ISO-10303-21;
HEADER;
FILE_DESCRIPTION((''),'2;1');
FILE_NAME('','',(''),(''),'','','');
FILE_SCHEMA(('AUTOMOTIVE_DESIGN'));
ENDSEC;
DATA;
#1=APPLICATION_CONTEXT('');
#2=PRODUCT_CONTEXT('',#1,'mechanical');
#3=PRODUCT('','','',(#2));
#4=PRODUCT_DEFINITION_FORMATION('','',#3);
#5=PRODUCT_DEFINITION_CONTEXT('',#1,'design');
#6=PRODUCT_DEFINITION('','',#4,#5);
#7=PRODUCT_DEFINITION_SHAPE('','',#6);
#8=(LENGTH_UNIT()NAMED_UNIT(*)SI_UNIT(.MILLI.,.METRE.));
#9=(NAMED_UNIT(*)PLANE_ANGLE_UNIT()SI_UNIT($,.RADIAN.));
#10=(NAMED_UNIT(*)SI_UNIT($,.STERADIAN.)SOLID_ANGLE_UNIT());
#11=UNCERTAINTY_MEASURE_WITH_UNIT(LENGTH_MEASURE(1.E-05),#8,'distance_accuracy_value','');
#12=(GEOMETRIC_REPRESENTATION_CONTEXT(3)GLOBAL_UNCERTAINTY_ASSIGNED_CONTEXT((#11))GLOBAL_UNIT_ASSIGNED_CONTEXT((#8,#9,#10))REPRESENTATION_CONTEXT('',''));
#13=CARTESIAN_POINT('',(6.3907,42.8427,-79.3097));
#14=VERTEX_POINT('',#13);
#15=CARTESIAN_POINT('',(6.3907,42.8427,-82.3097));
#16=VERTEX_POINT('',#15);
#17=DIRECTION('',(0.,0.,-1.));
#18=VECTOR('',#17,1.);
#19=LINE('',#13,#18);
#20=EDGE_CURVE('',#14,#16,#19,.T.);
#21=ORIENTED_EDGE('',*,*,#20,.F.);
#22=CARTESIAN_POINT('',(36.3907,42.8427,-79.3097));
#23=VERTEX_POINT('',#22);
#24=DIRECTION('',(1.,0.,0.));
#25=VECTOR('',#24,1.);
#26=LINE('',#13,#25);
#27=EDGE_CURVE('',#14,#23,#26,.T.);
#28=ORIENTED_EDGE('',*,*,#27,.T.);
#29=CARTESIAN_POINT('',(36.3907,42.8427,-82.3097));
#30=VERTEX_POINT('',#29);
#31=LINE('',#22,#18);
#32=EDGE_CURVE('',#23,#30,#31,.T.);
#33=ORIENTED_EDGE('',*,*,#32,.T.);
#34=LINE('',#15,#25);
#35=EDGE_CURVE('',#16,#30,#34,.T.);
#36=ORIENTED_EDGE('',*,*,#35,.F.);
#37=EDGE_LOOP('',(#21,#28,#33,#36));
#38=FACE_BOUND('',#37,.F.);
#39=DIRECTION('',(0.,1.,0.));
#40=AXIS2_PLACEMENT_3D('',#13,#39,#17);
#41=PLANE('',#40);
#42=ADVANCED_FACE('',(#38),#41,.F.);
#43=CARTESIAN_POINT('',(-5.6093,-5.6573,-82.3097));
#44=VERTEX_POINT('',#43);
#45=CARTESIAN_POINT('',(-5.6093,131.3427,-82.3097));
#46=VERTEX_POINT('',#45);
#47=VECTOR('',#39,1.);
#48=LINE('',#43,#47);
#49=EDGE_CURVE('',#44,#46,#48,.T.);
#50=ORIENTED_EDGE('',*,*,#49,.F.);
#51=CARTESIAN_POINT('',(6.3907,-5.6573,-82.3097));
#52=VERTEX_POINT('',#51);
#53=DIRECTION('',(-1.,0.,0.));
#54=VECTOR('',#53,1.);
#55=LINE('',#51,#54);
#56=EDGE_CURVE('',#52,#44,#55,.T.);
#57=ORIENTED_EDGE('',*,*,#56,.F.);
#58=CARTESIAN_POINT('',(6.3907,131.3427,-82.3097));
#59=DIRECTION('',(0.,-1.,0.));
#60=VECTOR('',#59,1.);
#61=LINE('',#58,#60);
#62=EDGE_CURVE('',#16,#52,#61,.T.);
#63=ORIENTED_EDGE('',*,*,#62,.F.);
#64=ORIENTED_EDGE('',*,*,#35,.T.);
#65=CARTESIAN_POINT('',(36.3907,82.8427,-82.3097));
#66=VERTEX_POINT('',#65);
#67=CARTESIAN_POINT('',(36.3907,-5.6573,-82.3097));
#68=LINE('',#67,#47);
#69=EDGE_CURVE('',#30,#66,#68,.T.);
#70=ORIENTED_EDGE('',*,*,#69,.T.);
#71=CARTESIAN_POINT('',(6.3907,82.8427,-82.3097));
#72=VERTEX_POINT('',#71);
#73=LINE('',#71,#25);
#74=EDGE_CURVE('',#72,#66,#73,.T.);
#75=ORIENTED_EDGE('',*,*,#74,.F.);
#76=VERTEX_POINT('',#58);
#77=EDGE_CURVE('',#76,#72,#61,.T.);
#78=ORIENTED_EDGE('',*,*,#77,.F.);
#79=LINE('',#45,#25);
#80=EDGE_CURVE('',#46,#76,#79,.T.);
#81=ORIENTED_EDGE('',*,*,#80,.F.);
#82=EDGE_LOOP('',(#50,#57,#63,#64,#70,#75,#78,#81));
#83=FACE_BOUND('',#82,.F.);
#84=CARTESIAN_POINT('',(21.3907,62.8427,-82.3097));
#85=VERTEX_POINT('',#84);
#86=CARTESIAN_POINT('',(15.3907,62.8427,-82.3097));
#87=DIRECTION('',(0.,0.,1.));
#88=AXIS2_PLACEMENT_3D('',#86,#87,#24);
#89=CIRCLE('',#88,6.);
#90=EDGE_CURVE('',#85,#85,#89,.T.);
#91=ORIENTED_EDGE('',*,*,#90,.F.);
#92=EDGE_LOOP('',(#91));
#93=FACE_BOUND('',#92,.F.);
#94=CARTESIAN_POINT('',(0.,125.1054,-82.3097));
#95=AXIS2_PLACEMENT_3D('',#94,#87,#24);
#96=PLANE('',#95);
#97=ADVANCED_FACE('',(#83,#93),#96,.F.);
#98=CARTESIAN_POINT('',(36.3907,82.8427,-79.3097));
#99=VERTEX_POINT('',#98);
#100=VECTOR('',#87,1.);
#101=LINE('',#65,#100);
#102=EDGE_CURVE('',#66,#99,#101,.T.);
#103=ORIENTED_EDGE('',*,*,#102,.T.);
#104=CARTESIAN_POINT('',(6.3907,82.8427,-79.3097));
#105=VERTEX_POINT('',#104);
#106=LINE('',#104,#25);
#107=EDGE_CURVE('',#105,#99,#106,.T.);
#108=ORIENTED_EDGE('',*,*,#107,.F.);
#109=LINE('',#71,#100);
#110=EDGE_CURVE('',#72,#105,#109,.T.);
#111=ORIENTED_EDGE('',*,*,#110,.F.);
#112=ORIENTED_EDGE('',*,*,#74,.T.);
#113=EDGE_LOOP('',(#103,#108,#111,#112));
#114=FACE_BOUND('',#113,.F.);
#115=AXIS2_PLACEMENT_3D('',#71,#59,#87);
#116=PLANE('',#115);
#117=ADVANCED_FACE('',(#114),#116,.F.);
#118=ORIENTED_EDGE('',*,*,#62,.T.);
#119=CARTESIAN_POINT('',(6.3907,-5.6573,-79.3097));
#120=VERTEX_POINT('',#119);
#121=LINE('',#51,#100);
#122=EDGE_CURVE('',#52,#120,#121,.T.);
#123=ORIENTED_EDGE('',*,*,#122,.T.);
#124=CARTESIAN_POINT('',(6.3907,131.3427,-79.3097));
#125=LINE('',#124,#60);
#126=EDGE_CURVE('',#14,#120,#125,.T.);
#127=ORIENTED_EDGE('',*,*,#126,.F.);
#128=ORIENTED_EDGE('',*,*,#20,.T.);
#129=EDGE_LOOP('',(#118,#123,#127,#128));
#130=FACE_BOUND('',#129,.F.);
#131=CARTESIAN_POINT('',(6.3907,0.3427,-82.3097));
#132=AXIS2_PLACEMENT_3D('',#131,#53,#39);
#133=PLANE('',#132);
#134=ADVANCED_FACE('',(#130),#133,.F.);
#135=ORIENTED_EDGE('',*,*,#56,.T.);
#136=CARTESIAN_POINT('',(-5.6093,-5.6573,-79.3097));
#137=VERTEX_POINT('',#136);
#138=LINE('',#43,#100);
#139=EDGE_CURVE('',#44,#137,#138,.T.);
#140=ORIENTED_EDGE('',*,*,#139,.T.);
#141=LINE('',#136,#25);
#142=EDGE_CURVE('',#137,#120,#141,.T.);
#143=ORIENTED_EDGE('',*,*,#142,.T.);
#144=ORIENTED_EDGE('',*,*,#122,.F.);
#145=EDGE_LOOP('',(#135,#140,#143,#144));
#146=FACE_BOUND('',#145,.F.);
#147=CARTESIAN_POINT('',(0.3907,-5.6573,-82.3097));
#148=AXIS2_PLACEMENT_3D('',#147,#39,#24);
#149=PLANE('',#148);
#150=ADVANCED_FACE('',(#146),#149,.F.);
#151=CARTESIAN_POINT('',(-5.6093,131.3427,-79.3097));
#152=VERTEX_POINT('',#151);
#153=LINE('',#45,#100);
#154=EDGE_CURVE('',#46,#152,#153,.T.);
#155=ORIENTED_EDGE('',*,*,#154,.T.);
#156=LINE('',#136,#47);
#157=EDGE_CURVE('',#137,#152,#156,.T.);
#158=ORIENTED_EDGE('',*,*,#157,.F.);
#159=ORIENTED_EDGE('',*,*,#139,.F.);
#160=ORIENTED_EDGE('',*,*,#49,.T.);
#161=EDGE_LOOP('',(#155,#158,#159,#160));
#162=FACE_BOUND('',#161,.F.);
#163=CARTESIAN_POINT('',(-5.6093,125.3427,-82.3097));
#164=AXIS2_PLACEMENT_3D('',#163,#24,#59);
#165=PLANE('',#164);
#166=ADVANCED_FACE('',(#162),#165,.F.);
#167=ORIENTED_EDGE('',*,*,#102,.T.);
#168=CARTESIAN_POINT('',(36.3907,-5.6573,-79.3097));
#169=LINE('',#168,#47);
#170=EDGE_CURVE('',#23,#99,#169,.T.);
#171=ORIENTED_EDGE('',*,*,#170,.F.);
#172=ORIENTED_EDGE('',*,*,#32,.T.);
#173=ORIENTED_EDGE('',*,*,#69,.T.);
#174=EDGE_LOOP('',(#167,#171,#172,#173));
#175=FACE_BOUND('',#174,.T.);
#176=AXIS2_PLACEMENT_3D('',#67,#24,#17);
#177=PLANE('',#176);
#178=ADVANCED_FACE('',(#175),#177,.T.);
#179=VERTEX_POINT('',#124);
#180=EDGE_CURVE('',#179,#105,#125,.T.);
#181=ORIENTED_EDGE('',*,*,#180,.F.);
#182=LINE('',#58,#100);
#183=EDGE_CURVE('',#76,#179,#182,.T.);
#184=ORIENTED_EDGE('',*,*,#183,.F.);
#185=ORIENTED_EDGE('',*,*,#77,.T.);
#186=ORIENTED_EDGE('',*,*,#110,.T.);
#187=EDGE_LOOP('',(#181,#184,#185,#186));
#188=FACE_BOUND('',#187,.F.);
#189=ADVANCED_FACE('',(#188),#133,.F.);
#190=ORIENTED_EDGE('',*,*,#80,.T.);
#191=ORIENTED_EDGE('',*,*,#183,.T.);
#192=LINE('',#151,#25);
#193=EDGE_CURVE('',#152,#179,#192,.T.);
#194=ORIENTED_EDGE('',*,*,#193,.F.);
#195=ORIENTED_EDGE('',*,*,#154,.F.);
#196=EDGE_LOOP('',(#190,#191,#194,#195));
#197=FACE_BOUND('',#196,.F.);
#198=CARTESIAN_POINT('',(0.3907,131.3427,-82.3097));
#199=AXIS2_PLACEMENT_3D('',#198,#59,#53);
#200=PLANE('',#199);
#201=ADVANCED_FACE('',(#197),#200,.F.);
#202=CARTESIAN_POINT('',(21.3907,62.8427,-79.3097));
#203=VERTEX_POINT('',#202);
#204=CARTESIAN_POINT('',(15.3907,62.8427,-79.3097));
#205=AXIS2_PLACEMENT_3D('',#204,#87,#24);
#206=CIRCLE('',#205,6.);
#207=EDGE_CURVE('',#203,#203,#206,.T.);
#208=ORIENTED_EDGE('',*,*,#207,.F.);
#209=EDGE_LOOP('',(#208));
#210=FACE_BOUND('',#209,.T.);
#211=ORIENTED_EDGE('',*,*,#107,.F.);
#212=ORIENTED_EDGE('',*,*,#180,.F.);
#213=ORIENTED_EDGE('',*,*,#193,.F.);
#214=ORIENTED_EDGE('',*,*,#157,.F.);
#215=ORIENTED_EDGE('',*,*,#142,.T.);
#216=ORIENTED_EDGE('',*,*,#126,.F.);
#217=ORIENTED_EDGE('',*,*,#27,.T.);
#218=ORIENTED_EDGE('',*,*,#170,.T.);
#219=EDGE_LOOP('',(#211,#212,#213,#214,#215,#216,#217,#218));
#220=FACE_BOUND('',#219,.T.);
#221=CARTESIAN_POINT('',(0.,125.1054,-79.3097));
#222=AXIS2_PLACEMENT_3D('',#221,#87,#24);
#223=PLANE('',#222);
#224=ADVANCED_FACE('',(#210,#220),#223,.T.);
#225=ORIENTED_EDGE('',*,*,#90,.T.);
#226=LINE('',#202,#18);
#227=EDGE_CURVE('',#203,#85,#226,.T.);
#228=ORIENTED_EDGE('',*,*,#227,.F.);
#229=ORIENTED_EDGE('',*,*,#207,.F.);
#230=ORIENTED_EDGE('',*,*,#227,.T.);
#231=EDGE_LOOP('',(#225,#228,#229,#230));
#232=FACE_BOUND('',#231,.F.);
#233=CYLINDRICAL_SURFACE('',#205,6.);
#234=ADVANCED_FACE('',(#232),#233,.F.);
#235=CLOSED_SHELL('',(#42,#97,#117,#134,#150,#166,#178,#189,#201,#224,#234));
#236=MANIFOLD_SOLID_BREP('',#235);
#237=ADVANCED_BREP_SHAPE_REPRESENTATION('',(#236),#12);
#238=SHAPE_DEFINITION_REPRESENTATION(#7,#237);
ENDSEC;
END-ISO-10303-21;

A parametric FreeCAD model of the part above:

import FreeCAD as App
import Part
import Sketcher
from FreeCAD import Vector
Q = App.Units.Quantity


def add_polygon(sketch, points):
    """Adds a closed chain of lines whose ends are joined by coincident constraints."""
    first, n = sketch.GeometryCount, len(points)
    for a, b in zip(points, points[1:] + points[:1]):
        sketch.addGeometry(Part.LineSegment(App.Vector(*a, 0), App.Vector(*b, 0)), False)
    for i in range(n):
        sketch.addConstraint(Sketcher.Constraint("Coincident", first + i, 2, first + (i + 1) % n, 1))

doc = App.newDocument("Part")
params = doc.addObject("Spreadsheet::Sheet", "Params")
for row, (alias, value) in enumerate([
    ("sketch1_width", "12 mm"),
    ("sketch1_height", "137 mm"),
    ("pad1_length", "3 mm"),
    ("sketch2_width", "40 mm"),
    ("sketch2_height", "3 mm"),
    ("pad2_length", "30 mm"),
    ("sketch3_diameter", "12 mm"),
    ("pocket1_length", "30 mm"),
], start=1):
    params.set(f"A{row}", alias)
    params.set(f"B{row}", "=" + value)
    params.setAlias(f"B{row}", alias)

body = doc.addObject("PartDesign::Body", "Body")

sketch1 = doc.addObject("Sketcher::SketchObject", "Sketch")
body.addObject(sketch1)
sketch1.AttachmentSupport = (doc.XY_Plane, [""])
sketch1.MapMode = "FlatFace"
sketch1.AttachmentOffset = App.Placement(Vector(0, 0, -82.3097), App.Rotation())
add_polygon(sketch1, [(6.3907, 131.3427), (-5.6093, 131.3427), (-5.6093, -5.6573), (6.3907, -5.6573)])
sketch1.addConstraint([
    Sketcher.Constraint("Horizontal", 0),
    Sketcher.Constraint("Vertical", 1),
    Sketcher.Constraint("Horizontal", 2),
    Sketcher.Constraint("Vertical", 3),
    Sketcher.Constraint("DistanceX", 0, 2, 0, 1, Q("12 mm")),
    Sketcher.Constraint("DistanceY", 1, 2, 1, 1, Q("137 mm")),
    Sketcher.Constraint("DistanceX", 0, 2, -1, 1, Q("5.6093 mm")),
    Sketcher.Constraint("DistanceY", -1, 1, 0, 2, Q("131.3427 mm")),
])
sketch1.setExpression("Constraints[8]", "Params.sketch1_width")
sketch1.setExpression("Constraints[9]", "Params.sketch1_height")
pad1 = doc.addObject("PartDesign::Pad", "Pad")
body.addObject(pad1)
pad1.Profile = sketch1
pad1.setExpression("Length", "Params.pad1_length")

sketch2 = doc.addObject("Sketcher::SketchObject", "Sketch001")
body.addObject(sketch2)
sketch2.AttachmentSupport = (doc.YZ_Plane, [""])
sketch2.MapMode = "FlatFace"
sketch2.AttachmentOffset = App.Placement(Vector(0, 0, 6.3907), App.Rotation())
add_polygon(sketch2, [(42.8427, -79.3097), (42.8427, -82.3097), (82.8427, -82.3097), (82.8427, -79.3097)])
sketch2.addConstraint([
    Sketcher.Constraint("Vertical", 0),
    Sketcher.Constraint("Horizontal", 1),
    Sketcher.Constraint("Vertical", 2),
    Sketcher.Constraint("Horizontal", 3),
    Sketcher.Constraint("DistanceX", 1, 1, 1, 2, Q("40 mm")),
    Sketcher.Constraint("DistanceY", 0, 2, 0, 1, Q("3 mm")),
    Sketcher.Constraint("DistanceX", -1, 1, 0, 2, Q("42.8427 mm")),
    Sketcher.Constraint("DistanceY", 0, 2, -1, 1, Q("82.3097 mm")),
])
sketch2.setExpression("Constraints[8]", "Params.sketch2_width")
sketch2.setExpression("Constraints[9]", "Params.sketch2_height")
pad2 = doc.addObject("PartDesign::Pad", "Pad001")
body.addObject(pad2)
pad2.Profile = sketch2
pad2.setExpression("Length", "Params.pad2_length")

sketch3 = doc.addObject("Sketcher::SketchObject", "Sketch002")
body.addObject(sketch3)
sketch3.AttachmentSupport = (doc.XY_Plane, [""])
sketch3.MapMode = "FlatFace"
sketch3.AttachmentOffset = App.Placement(Vector(0, 0, -79.3097), App.Rotation())
sketch3.addGeometry(Part.Circle(Vector(15.3907, 62.8427, 0), Vector(0, 0, 1), 6), False)
sketch3.addConstraint([
    Sketcher.Constraint("Diameter", 0, Q("12 mm")),
    Sketcher.Constraint("DistanceX", -1, 1, 0, 3, Q("15.3907 mm")),
    Sketcher.Constraint("DistanceY", -1, 1, 0, 3, Q("62.8427 mm")),
])
sketch3.setExpression("Constraints[0]", "Params.sketch3_diameter")
pocket1 = doc.addObject("PartDesign::Pocket", "Pocket")
body.addObject(pocket1)
pocket1.Profile = sketch3
pocket1.setExpression("Length", "Params.pocket1_length")

doc.recompute()
